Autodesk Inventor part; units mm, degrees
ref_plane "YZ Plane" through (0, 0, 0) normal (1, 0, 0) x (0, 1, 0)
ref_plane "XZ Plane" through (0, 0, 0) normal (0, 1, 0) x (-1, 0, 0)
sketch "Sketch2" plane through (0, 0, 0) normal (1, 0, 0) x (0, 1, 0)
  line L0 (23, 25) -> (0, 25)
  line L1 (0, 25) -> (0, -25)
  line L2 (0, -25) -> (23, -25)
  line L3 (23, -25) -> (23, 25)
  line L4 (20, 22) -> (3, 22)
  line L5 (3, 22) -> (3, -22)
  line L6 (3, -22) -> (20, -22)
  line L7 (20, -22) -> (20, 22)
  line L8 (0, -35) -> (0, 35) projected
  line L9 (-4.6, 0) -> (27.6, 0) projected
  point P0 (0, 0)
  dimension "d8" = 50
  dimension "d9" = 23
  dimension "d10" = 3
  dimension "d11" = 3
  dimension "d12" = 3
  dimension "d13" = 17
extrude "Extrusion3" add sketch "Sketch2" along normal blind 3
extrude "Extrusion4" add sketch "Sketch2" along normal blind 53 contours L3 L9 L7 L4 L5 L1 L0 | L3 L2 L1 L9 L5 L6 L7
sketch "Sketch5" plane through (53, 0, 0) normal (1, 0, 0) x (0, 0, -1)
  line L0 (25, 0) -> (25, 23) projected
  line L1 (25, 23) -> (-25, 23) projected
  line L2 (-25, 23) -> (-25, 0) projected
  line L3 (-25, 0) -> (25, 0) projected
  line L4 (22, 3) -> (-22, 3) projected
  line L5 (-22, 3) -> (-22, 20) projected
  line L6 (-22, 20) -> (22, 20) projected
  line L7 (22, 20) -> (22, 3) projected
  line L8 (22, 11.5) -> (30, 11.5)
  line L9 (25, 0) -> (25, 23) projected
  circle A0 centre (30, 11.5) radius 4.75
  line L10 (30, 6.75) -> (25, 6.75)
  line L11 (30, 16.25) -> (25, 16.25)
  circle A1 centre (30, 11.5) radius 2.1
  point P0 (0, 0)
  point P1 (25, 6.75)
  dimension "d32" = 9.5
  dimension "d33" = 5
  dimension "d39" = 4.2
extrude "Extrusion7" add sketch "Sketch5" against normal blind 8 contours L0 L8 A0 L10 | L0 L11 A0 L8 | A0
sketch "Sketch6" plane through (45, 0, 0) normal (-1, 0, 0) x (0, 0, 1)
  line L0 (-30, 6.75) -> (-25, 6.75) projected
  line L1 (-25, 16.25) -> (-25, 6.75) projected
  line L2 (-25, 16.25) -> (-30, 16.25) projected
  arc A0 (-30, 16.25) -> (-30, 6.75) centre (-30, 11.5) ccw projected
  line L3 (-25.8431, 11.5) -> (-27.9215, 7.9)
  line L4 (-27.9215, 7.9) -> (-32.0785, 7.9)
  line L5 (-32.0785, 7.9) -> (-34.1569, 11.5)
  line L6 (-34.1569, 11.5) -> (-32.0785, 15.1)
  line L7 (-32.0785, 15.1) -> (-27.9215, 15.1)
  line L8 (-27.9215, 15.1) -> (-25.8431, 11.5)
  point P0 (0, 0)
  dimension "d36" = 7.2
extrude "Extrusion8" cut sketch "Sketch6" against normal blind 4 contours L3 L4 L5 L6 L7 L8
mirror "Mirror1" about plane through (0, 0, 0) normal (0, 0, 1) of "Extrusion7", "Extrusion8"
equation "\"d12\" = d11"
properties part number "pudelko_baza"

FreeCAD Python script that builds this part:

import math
import FreeCAD as App
import Part
import Sketcher
Q = App.Units.Quantity


def add_polygon(sketch, points):
    """Adds a closed chain of lines whose ends are joined by coincident constraints."""
    first, n = sketch.GeometryCount, len(points)
    for a, b in zip(points, points[1:] + points[:1]):
        sketch.addGeometry(Part.LineSegment(App.Vector(*a, 0), App.Vector(*b, 0)), False)
    for i in range(n):
        sketch.addConstraint(Sketcher.Constraint("Coincident", first + i, 2, first + (i + 1) % n, 1))

doc = App.newDocument("Part")
body = doc.addObject("PartDesign::Body", "Body")

# Sketch on YZ plane
sketch1 = body.newObject("Sketcher::SketchObject", "Sketch")
sketch1.AttachmentSupport = (doc.getObject("YZ_Plane"), [""])
sketch1.MapMode = "FlatFace"
add_polygon(sketch1, [(23, 25), (0, 25), (0, -25), (23, -25)])  # lines 0-3
sketch1.addConstraint(Sketcher.Constraint("Horizontal", 0))
sketch1.addConstraint(Sketcher.Constraint("Vertical", 1))
sketch1.addConstraint(Sketcher.Constraint("Horizontal", 2))
sketch1.addConstraint(Sketcher.Constraint("Vertical", 3))
sketch1.addConstraint(Sketcher.Constraint("Symmetric", 0, 2, 1, 2, -1, 1))
sketch1.addConstraint(Sketcher.Constraint("DistanceX", 0, 2, 0, 1, 23.0))
sketch1.addConstraint(Sketcher.Constraint("DistanceY", 1, 2, 1, 1, 50.0))
pad1 = body.newObject("PartDesign::Pad", "Pad")
pad1.Profile = sketch1
pad1.Length = 3

# Sketch on YZ plane
sketch2 = body.newObject("Sketcher::SketchObject", "Sketch001")
sketch2.AttachmentSupport = (doc.getObject("YZ_Plane"), [""])
sketch2.MapMode = "FlatFace"
add_polygon(sketch2, [(23, 25), (0, 25), (0, -25), (23, -25)])  # lines 0-3
add_polygon(sketch2, [(20, 22), (20, -22), (3, -22), (3, 22)])  # lines 4-7
sketch2.addConstraint(Sketcher.Constraint("Horizontal", 0))
sketch2.addConstraint(Sketcher.Constraint("Vertical", 1))
sketch2.addConstraint(Sketcher.Constraint("Horizontal", 2))
sketch2.addConstraint(Sketcher.Constraint("Vertical", 3))
sketch2.addConstraint(Sketcher.Constraint("Vertical", 4))
sketch2.addConstraint(Sketcher.Constraint("Horizontal", 5))
sketch2.addConstraint(Sketcher.Constraint("Vertical", 6))
sketch2.addConstraint(Sketcher.Constraint("Horizontal", 7))
sketch2.addConstraint(Sketcher.Constraint("Symmetric", 0, 2, 1, 2, -1, 1))
sketch2.addConstraint(Sketcher.Constraint("DistanceX", 0, 2, 0, 1, 23.0))
sketch2.addConstraint(Sketcher.Constraint("DistanceX", 5, 2, 5, 1, 17.0))
sketch2.addConstraint(Sketcher.Constraint("DistanceY", 1, 2, 1, 1, 50.0))
sketch2.addConstraint(Sketcher.Constraint("DistanceX", -1, 1, 5, 2, 3.0))
sketch2.addConstraint(Sketcher.Constraint("DistanceY", 2, 2, 4, 2, 3.0))
sketch2.addConstraint(Sketcher.Constraint("DistanceY", 6, 2, 0, 2, 3.0))
pad2 = body.newObject("PartDesign::Pad", "Pad001")
pad2.Profile = sketch2
pad2.Length = 53

# Sketch on YZ plane
sketch3 = body.newObject("Sketcher::SketchObject", "Sketch002")
sketch3.AttachmentSupport = (doc.getObject("YZ_Plane"), [""])
sketch3.MapMode = "FlatFace"
sketch3.AttachmentOffset = App.Placement(App.Vector(0, 0, 53), App.Rotation())
sketch3.addGeometry(Part.LineSegment(App.Vector(6.75, -25, 0), App.Vector(6.75, -30, 0)), False)
sketch3.addGeometry(Part.ArcOfCircle(Part.Circle(App.Vector(11.5, -30, 0), App.Vector(0, 0, 1), 4.75), math.radians(180), math.radians(360)), False)
sketch3.addGeometry(Part.LineSegment(App.Vector(16.25, -30, 0), App.Vector(16.25, -25, 0)), False)
sketch3.addGeometry(Part.LineSegment(App.Vector(16.25, -25, 0), App.Vector(6.75, -25, 0)), False)
sketch3.addGeometry(Part.Circle(App.Vector(11.5, -30, 0), App.Vector(0, 0, 1), 2.1), False)
sketch3.addConstraint(Sketcher.Constraint("Tangent", 0, 2, 1, 1))
sketch3.addConstraint(Sketcher.Constraint("Tangent", 1, 2, 2, 1))
sketch3.addConstraint(Sketcher.Constraint("Coincident", 2, 2, 3, 1))
sketch3.addConstraint(Sketcher.Constraint("Coincident", 3, 2, 0, 1))
sketch3.addConstraint(Sketcher.Constraint("Vertical", 0))
sketch3.addConstraint(Sketcher.Constraint("Vertical", 2))
sketch3.addConstraint(Sketcher.Constraint("Horizontal", 3))
sketch3.addConstraint(Sketcher.Constraint("Coincident", 4, 3, 1, 3))
sketch3.addConstraint(Sketcher.Constraint("Diameter", 4, 4.2))
sketch3.addConstraint(Sketcher.Constraint("DistanceY", 0, 2, 0, 1, 5.0))
sketch3.addConstraint(Sketcher.Constraint("Radius", 1, 4.75))
sketch3.addConstraint(Sketcher.Constraint("DistanceY", 1, 3, -1, 1, 30.0))
sketch3.addConstraint(Sketcher.Constraint("DistanceX", -1, 1, 1, 3, 11.5))
pad3 = body.newObject("PartDesign::Pad", "Pad002")
pad3.Profile = sketch3
pad3.Length = 8
pad3.Reversed = True

# Sketch on YZ plane
sketch4 = body.newObject("Sketcher::SketchObject", "Sketch003")
sketch4.AttachmentSupport = (doc.getObject("YZ_Plane"), [""])
sketch4.MapMode = "FlatFace"
sketch4.AttachmentOffset = App.Placement(App.Vector(0, 0, 45), App.Rotation())
add_polygon(sketch4, [(7.9, -27.9215), (11.5, -25.8431), (15.1, -27.9215), (15.1, -32.0785), (11.5, -34.1569), (7.9, -32.0785)])  # lines 0-5
sketch4.addConstraint(Sketcher.Constraint("Vertical", 2))
sketch4.addConstraint(Sketcher.Constraint("Vertical", 5))
sketch4.addConstraint(Sketcher.Constraint("Parallel", 0, 3))
sketch4.addConstraint(Sketcher.Constraint("Parallel", 1, 4))
sketch4.addConstraint(Sketcher.Constraint("Horizontal", 2, 2, 4, 2))
sketch4.addConstraint(Sketcher.Constraint("Horizontal", 1, 2, 5, 2))
sketch4.addConstraint(Sketcher.Constraint("Vertical", 0, 2, 3, 2))
sketch4.addConstraint(Sketcher.Constraint("DistanceX", 4, 2, 2, 2, 7.2))
sketch4.addConstraint(Sketcher.Constraint("Angle", 0, Q("29.9993 deg")))
sketch4.addConstraint(Sketcher.Constraint("DistanceX", -1, 1, 0, 2, 11.5))
sketch4.addConstraint(Sketcher.Constraint("DistanceY", 2, 2, 2, 1, 4.157))
sketch4.addConstraint(Sketcher.Constraint("DistanceY", 0, 2, -1, 1, 25.843))
pocket1 = body.newObject("PartDesign::Pocket", "Pocket")
pocket1.Profile = sketch4
pocket1.Length = 4
pocket1.Reversed = True
doc.recompute()

mirrored = body.newObject("PartDesign::Mirrored", "Mirrored")
mirrored.Originals = [pad3, pocket1]
mirrored.MirrorPlane = (doc.getObject("XY_Plane"), [""])
body.Tip = mirrored

doc.recompute()
